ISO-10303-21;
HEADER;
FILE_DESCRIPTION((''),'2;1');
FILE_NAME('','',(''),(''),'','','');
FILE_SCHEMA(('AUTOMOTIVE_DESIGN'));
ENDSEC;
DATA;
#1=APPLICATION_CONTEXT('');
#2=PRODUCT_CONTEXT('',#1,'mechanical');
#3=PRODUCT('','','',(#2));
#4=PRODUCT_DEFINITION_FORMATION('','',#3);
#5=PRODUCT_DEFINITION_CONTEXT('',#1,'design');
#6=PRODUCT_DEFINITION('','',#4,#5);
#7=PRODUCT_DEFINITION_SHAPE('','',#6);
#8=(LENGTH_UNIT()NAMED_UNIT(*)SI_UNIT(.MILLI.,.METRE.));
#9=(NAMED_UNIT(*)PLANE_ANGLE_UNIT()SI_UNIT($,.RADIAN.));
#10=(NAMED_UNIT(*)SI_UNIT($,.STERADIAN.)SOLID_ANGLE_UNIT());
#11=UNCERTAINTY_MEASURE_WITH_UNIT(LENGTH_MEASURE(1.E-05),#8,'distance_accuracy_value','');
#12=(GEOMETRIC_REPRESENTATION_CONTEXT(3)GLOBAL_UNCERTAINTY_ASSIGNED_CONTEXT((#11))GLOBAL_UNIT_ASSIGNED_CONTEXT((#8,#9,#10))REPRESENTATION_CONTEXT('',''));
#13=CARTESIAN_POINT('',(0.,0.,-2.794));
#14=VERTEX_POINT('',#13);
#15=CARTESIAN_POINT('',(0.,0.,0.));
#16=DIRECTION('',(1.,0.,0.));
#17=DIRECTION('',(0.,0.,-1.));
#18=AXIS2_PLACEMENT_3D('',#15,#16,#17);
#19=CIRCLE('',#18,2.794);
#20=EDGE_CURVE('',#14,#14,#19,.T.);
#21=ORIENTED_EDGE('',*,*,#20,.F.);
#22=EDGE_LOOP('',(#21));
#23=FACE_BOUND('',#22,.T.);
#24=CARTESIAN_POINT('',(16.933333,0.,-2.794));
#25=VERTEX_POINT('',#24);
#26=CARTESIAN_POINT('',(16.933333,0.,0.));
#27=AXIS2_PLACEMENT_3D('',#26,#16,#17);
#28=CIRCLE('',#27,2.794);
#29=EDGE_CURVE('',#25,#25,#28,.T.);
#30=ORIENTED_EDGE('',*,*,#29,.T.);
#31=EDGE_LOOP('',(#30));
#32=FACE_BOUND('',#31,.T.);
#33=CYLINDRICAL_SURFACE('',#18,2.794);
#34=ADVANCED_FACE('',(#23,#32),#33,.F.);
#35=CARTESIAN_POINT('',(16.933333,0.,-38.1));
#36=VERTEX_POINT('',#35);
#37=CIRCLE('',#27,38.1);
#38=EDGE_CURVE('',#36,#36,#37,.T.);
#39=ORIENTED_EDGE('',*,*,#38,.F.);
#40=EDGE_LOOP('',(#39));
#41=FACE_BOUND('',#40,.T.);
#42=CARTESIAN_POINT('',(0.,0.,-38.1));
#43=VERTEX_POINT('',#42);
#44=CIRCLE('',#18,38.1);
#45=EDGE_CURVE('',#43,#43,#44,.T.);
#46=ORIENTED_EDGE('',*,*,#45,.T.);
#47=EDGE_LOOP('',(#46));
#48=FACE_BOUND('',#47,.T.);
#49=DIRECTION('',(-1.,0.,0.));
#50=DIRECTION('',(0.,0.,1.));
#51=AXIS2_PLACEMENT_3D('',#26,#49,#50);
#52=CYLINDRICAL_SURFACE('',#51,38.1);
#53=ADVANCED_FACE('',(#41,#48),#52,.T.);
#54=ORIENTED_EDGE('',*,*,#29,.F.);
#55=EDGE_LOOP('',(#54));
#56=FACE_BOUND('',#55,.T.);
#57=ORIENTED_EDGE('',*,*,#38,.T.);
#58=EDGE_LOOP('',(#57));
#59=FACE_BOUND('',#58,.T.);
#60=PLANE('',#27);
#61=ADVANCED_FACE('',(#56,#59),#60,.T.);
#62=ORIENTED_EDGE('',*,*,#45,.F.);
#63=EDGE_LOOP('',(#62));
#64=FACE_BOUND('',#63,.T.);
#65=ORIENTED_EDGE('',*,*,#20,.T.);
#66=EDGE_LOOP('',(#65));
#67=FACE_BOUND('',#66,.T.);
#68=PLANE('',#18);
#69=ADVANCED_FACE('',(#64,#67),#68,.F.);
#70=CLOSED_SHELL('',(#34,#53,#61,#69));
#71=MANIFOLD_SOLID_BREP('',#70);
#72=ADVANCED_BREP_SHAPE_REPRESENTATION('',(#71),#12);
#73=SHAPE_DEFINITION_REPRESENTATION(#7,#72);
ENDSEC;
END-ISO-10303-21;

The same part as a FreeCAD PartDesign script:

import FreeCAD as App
import Part
import Sketcher

V = App.Vector
Q = App.Units.Quantity

doc = App.newDocument("Part")
body = doc.addObject("PartDesign::Body", "Body")

sketch1 = body.newObject("Sketcher::SketchObject", "Sketch")
sketch1.AttachmentSupport = (doc.getObject("YZ_Plane"), [""])
sketch1.MapMode = "FlatFace"
sketch1.addGeometry(Part.Circle(V(0, 0, 0), V(0, 0, 1), 38.1), False)
sketch1.addConstraint(Sketcher.Constraint("Coincident", 0, 3, -1, 1))
sketch1.addConstraint(Sketcher.Constraint("Diameter", 0, Q("3 in")))
pad1 = body.newObject("PartDesign::Pad", "Pad")
pad1.Profile = sketch1
pad1.Length = 16.933333

sketch2 = body.newObject("Sketcher::SketchObject", "Sketch001")
sketch2.AttachmentSupport = (doc.getObject("YZ_Plane"), [""])
sketch2.MapMode = "FlatFace"
sketch2.AttachmentOffset = App.Placement(V(0, 0, 16.933333), App.Rotation())
sketch2.addGeometry(Part.Circle(V(0, 0, 0), V(0, 0, 1), 2.794), False)
sketch2.addConstraint(Sketcher.Constraint("Coincident", 0, 3, -1, 1))
sketch2.addConstraint(Sketcher.Constraint("Diameter", 0, Q("0.22 in")))
pocket1 = body.newObject("PartDesign::Pocket", "Pocket")
pocket1.Profile = sketch2
pocket1.Length = 16.933333

doc.recompute()
